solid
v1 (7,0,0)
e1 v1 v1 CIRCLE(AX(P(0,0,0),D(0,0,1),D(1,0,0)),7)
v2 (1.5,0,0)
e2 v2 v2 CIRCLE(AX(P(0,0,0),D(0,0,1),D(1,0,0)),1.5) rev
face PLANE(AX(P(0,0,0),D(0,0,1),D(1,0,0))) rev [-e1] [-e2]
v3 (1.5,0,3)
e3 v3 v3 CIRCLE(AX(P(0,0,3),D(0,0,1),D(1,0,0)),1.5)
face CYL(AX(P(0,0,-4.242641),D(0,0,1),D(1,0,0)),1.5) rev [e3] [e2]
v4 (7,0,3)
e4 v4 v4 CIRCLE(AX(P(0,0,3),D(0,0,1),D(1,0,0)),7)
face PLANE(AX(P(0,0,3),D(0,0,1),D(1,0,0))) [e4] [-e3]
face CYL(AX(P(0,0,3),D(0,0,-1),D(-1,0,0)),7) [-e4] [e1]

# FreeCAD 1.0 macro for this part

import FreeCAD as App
import Part
import Sketcher
Q = App.Units.Quantity

doc = App.newDocument("Part")
body = doc.addObject("PartDesign::Body", "Body")

# Sketch on XY plane
sketch1 = body.newObject("Sketcher::SketchObject", "Sketch")
sketch1.AttachmentSupport = (doc.getObject("XY_Plane"), [""])
sketch1.MapMode = "FlatFace"
sketch1.addGeometry(Part.Circle(App.Vector(0, 0, 0), App.Vector(0, 0, 1), 7), False)
sketch1.addConstraint([
    Sketcher.Constraint("Coincident", 0, 3, -1, 1),
    Sketcher.Constraint("Diameter", 0, Q("14 mm")),
])
pad1 = body.newObject("PartDesign::Pad", "Pad")
pad1.Profile = sketch1
pad1.Length = 3

# Sketch on XY plane
sketch2 = body.newObject("Sketcher::SketchObject", "Sketch001")
sketch2.AttachmentSupport = (doc.getObject("XY_Plane"), [""])
sketch2.MapMode = "FlatFace"
sketch2.AttachmentOffset = App.Placement(App.Vector(0, 0, 3), App.Rotation())
sketch2.addGeometry(Part.Circle(App.Vector(0, 0, 0), App.Vector(0, 0, 1), 1.5), False)
sketch2.addConstraint([
    Sketcher.Constraint("Coincident", 0, 3, -1, 1),
    Sketcher.Constraint("Diameter", 0, Q("3 mm")),
])
pocket1 = body.newObject("PartDesign::Pocket", "Pocket")
pocket1.Profile = sketch2
pocket1.Length = 3

doc.recompute()
